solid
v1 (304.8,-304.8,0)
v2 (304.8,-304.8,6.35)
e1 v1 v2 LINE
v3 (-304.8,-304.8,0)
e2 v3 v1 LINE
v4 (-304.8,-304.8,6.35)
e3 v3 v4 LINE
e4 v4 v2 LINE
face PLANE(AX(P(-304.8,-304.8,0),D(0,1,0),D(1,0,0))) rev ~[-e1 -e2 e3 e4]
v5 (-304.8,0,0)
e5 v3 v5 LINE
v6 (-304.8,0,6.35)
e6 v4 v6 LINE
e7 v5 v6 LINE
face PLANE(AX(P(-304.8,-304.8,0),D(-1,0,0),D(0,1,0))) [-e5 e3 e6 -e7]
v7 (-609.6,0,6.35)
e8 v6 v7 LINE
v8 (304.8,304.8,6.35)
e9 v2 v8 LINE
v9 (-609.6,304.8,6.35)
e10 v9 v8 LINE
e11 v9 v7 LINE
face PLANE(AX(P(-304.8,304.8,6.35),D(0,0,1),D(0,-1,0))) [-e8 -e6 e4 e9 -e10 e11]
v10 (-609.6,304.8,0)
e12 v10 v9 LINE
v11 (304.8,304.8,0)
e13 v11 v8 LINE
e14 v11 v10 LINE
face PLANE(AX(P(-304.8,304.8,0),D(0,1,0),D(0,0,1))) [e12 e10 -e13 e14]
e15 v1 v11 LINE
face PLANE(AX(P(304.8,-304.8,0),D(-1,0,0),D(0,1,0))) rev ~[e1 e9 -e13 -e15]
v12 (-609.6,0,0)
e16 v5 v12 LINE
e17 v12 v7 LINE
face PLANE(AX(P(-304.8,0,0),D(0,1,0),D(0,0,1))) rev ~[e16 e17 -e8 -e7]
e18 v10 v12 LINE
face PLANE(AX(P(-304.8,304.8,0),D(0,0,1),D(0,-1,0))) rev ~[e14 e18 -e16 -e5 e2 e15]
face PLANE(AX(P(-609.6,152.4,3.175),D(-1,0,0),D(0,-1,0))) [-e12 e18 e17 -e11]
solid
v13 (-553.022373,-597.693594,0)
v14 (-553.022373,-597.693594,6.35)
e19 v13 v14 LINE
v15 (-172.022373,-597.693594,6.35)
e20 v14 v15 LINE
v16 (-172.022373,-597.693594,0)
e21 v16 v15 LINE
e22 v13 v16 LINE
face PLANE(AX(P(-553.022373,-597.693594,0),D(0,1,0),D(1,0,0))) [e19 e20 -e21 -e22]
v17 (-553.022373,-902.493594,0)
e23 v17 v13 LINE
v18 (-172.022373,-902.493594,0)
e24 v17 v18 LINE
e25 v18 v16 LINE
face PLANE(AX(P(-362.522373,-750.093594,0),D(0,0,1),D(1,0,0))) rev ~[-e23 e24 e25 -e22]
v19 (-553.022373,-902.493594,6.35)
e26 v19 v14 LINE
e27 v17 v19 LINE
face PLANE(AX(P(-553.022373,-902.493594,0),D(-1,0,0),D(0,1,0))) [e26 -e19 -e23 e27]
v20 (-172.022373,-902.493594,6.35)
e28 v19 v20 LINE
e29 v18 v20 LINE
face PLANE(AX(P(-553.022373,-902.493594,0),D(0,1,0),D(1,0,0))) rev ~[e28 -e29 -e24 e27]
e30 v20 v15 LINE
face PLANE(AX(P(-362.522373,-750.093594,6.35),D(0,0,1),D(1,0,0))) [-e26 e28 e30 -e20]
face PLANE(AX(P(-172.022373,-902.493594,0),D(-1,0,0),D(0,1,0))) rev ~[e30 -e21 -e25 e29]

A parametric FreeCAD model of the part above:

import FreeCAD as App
import Part
import Sketcher
Q = App.Units.Quantity


def add_polygon(sketch, points):
    """Adds a closed chain of lines whose ends are joined by coincident constraints."""
    first, n = sketch.GeometryCount, len(points)
    for a, b in zip(points, points[1:] + points[:1]):
        sketch.addGeometry(Part.LineSegment(App.Vector(*a, 0), App.Vector(*b, 0)), False)
    for i in range(n):
        sketch.addConstraint(Sketcher.Constraint("Coincident", first + i, 2, first + (i + 1) % n, 1))

doc = App.newDocument("Part")
body = doc.addObject("PartDesign::Body", "Body")

# Sketch on XY plane
sketch1 = body.newObject("Sketcher::SketchObject", "Sketch")
sketch1.AttachmentSupport = (doc.getObject("XY_Plane"), [""])
sketch1.MapMode = "FlatFace"
add_polygon(sketch1, [(-305, 305), (-305, -305), (305, -305), (305, 305)])  # lines 0-3
sketch1.addConstraint([
    Sketcher.Constraint("Vertical", 0),
    Sketcher.Constraint("Horizontal", 1),
    Sketcher.Constraint("Vertical", 2),
    Sketcher.Constraint("Horizontal", 3),
    Sketcher.Constraint("Symmetric", 0, 2, 2, 2, -1, 1),
    Sketcher.Constraint("Equal", 3, 0),
    Sketcher.Constraint("DistanceX", 1, 1, 1, 2, Q("24 in")),
])
pad1 = body.newObject("PartDesign::Pad", "Pad")
pad1.Profile = sketch1
pad1.Length = Q("0.25 in")

# Sketch on YZ plane
sketch2 = body.newObject("Sketcher::SketchObject", "Sketch001")
sketch2.AttachmentSupport = (doc.getObject("YZ_Plane"), [""])
sketch2.MapMode = "FlatFace"
sketch2.AttachmentOffset = App.Placement(App.Vector(0, 0, -12 * 25.4), App.Rotation())
add_polygon(sketch2, [(305, 6), (305, 0), (0, 0), (0, 6)])  # lines 0-3
sketch2.addConstraint([
    Sketcher.Constraint("Vertical", 0),
    Sketcher.Constraint("Horizontal", 1),
    Sketcher.Constraint("Vertical", 2),
    Sketcher.Constraint("Horizontal", 3),
    Sketcher.Constraint("Coincident", 1, 2, -1, 1),
    Sketcher.Constraint("DistanceX", 1, 2, 1, 1, Q("12 in")),
    Sketcher.Constraint("DistanceY", 0, 2, 0, 1, Q("0.25 in")),
])
pad2 = body.newObject("PartDesign::Pad", "Pad001")
pad2.Profile = sketch2
pad2.Length = Q("12 in")
pad2.Reversed = True
body2 = doc.addObject("PartDesign::Body", "Body001")

# Sketch on XY plane
sketch3 = body2.newObject("Sketcher::SketchObject", "Sketch002")
sketch3.AttachmentSupport = (doc.getObject("XY_Plane001"), [""])
sketch3.MapMode = "FlatFace"
add_polygon(sketch3, [(-553, -598), (-553, -902), (-172, -902), (-172, -598)])  # lines 0-3
sketch3.addConstraint([
    Sketcher.Constraint("Vertical", 0),
    Sketcher.Constraint("Horizontal", 1),
    Sketcher.Constraint("Vertical", 2),
    Sketcher.Constraint("Horizontal", 3),
    Sketcher.Constraint("DistanceX", 1, 1, 1, 2, Q("15 in")),
    Sketcher.Constraint("DistanceY", 0, 2, 0, 1, Q("12 in")),
    Sketcher.Constraint("DistanceX", 0, 2, -1, 1, Q("553.022373 mm")),
    Sketcher.Constraint("DistanceY", 0, 2, -1, 1, Q("902.493594 mm")),
])
pad3 = body2.newObject("PartDesign::Pad", "Pad002")
pad3.Profile = sketch3
pad3.Length = Q("0.25 in")

doc.recompute()
